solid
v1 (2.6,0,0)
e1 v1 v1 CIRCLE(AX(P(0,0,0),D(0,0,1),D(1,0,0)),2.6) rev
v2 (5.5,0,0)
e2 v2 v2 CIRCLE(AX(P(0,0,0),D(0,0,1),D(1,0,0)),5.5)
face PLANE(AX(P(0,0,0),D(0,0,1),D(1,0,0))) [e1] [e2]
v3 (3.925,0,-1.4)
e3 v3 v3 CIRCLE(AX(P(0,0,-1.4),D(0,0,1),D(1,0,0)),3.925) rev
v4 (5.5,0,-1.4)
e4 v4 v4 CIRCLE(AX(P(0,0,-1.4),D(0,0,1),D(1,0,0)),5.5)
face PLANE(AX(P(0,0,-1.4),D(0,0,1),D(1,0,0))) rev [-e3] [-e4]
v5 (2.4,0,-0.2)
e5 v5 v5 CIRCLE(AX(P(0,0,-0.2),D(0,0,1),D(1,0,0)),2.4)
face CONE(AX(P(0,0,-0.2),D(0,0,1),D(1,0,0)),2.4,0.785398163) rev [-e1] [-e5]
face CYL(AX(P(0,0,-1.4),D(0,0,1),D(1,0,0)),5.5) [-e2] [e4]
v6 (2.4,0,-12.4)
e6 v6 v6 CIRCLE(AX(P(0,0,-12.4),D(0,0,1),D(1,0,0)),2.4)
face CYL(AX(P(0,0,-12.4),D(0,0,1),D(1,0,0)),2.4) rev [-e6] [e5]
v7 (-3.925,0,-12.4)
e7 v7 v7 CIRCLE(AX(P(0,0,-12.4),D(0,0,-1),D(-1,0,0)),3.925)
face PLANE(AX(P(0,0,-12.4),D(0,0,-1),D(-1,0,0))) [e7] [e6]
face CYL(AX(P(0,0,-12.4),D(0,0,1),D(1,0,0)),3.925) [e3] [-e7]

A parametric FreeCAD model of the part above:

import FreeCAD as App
import Part
import Sketcher

V = App.Vector


def edges_at(feature, points):
    """Names of the edges that pass closest to the given points."""
    edges = feature.Shape.Edges
    near = lambda p: min(range(len(edges)), key=lambda i: edges[i].distToShape(Part.Vertex(*p))[0])
    return sorted({f"Edge{near(p) + 1}" for p in points})

doc = App.newDocument("Part")
params = doc.addObject("Spreadsheet::Sheet", "Params")
for row, (alias, value) in enumerate([
    ("sketch1_diameter", "11 mm"),
    ("pad1_length", "1.4 mm"),
    ("sketch2_diameter", "7.85 mm"),
    ("pad2_length", "11 mm"),
    ("sketch3_diameter", "4.8 mm"),
    ("chamfer_size", "0.2 mm"),
], start=1):
    params.set(f"A{row}", alias)
    params.set(f"B{row}", "=" + value)
    params.setAlias(f"B{row}", alias)

body = doc.addObject("PartDesign::Body", "Body")

# Sketch on XY plane
sketch1 = body.newObject("Sketcher::SketchObject", "Sketch")
sketch1.AttachmentSupport = (doc.getObject("XY_Plane"), [""])
sketch1.MapMode = "FlatFace"
sketch1.addGeometry(Part.Circle(V(0, 0, 0), V(0, 0, 1), 5.5), False)
sketch1.addConstraint(Sketcher.Constraint("Coincident", 0, 3, -1, 1))
sketch1.addConstraint(Sketcher.Constraint("Diameter", 0, 11.0))
sketch1.setExpression("Constraints[1]", "Params.sketch1_diameter")
pad1 = body.newObject("PartDesign::Pad", "Pad")
pad1.Profile = sketch1
pad1.setExpression("Length", "Params.pad1_length")
pad1.Reversed = True

# Sketch on XY plane
sketch2 = body.newObject("Sketcher::SketchObject", "Sketch001")
sketch2.AttachmentSupport = (doc.getObject("XY_Plane"), [""])
sketch2.MapMode = "FlatFace"
sketch2.AttachmentOffset = App.Placement(V(0, 0, -1.4), App.Rotation())
sketch2.addGeometry(Part.Circle(V(0, 0, 0), V(0, 0, 1), 3.925), False)
sketch2.addConstraint(Sketcher.Constraint("Coincident", 0, 3, -1, 1))
sketch2.addConstraint(Sketcher.Constraint("Diameter", 0, 7.85))
sketch2.setExpression("Constraints[1]", "Params.sketch2_diameter")
pad2 = body.newObject("PartDesign::Pad", "Pad001")
pad2.Profile = sketch2
pad2.setExpression("Length", "Params.pad2_length")
pad2.Reversed = True

# Sketch on XY plane
sketch3 = body.newObject("Sketcher::SketchObject", "Sketch002")
sketch3.AttachmentSupport = (doc.getObject("XY_Plane"), [""])
sketch3.MapMode = "FlatFace"
sketch3.addGeometry(Part.Circle(V(0, 0, 0), V(0, 0, 1), 2.4), False)
sketch3.addConstraint(Sketcher.Constraint("Coincident", 0, 3, -1, 1))
sketch3.addConstraint(Sketcher.Constraint("Diameter", 0, 4.8))
sketch3.setExpression("Constraints[1]", "Params.sketch3_diameter")
pocket1 = body.newObject("PartDesign::Pocket", "Pocket")
pocket1.Profile = sketch3
pocket1.Type = "ThroughAll"
doc.recompute()

chamfer = body.newObject("PartDesign::Chamfer", "Chamfer")
chamfer.Base = (pocket1, edges_at(pocket1, [(-2.4, 0, 0)]))
chamfer.setExpression("Size", "Params.chamfer_size")

doc.recompute()
